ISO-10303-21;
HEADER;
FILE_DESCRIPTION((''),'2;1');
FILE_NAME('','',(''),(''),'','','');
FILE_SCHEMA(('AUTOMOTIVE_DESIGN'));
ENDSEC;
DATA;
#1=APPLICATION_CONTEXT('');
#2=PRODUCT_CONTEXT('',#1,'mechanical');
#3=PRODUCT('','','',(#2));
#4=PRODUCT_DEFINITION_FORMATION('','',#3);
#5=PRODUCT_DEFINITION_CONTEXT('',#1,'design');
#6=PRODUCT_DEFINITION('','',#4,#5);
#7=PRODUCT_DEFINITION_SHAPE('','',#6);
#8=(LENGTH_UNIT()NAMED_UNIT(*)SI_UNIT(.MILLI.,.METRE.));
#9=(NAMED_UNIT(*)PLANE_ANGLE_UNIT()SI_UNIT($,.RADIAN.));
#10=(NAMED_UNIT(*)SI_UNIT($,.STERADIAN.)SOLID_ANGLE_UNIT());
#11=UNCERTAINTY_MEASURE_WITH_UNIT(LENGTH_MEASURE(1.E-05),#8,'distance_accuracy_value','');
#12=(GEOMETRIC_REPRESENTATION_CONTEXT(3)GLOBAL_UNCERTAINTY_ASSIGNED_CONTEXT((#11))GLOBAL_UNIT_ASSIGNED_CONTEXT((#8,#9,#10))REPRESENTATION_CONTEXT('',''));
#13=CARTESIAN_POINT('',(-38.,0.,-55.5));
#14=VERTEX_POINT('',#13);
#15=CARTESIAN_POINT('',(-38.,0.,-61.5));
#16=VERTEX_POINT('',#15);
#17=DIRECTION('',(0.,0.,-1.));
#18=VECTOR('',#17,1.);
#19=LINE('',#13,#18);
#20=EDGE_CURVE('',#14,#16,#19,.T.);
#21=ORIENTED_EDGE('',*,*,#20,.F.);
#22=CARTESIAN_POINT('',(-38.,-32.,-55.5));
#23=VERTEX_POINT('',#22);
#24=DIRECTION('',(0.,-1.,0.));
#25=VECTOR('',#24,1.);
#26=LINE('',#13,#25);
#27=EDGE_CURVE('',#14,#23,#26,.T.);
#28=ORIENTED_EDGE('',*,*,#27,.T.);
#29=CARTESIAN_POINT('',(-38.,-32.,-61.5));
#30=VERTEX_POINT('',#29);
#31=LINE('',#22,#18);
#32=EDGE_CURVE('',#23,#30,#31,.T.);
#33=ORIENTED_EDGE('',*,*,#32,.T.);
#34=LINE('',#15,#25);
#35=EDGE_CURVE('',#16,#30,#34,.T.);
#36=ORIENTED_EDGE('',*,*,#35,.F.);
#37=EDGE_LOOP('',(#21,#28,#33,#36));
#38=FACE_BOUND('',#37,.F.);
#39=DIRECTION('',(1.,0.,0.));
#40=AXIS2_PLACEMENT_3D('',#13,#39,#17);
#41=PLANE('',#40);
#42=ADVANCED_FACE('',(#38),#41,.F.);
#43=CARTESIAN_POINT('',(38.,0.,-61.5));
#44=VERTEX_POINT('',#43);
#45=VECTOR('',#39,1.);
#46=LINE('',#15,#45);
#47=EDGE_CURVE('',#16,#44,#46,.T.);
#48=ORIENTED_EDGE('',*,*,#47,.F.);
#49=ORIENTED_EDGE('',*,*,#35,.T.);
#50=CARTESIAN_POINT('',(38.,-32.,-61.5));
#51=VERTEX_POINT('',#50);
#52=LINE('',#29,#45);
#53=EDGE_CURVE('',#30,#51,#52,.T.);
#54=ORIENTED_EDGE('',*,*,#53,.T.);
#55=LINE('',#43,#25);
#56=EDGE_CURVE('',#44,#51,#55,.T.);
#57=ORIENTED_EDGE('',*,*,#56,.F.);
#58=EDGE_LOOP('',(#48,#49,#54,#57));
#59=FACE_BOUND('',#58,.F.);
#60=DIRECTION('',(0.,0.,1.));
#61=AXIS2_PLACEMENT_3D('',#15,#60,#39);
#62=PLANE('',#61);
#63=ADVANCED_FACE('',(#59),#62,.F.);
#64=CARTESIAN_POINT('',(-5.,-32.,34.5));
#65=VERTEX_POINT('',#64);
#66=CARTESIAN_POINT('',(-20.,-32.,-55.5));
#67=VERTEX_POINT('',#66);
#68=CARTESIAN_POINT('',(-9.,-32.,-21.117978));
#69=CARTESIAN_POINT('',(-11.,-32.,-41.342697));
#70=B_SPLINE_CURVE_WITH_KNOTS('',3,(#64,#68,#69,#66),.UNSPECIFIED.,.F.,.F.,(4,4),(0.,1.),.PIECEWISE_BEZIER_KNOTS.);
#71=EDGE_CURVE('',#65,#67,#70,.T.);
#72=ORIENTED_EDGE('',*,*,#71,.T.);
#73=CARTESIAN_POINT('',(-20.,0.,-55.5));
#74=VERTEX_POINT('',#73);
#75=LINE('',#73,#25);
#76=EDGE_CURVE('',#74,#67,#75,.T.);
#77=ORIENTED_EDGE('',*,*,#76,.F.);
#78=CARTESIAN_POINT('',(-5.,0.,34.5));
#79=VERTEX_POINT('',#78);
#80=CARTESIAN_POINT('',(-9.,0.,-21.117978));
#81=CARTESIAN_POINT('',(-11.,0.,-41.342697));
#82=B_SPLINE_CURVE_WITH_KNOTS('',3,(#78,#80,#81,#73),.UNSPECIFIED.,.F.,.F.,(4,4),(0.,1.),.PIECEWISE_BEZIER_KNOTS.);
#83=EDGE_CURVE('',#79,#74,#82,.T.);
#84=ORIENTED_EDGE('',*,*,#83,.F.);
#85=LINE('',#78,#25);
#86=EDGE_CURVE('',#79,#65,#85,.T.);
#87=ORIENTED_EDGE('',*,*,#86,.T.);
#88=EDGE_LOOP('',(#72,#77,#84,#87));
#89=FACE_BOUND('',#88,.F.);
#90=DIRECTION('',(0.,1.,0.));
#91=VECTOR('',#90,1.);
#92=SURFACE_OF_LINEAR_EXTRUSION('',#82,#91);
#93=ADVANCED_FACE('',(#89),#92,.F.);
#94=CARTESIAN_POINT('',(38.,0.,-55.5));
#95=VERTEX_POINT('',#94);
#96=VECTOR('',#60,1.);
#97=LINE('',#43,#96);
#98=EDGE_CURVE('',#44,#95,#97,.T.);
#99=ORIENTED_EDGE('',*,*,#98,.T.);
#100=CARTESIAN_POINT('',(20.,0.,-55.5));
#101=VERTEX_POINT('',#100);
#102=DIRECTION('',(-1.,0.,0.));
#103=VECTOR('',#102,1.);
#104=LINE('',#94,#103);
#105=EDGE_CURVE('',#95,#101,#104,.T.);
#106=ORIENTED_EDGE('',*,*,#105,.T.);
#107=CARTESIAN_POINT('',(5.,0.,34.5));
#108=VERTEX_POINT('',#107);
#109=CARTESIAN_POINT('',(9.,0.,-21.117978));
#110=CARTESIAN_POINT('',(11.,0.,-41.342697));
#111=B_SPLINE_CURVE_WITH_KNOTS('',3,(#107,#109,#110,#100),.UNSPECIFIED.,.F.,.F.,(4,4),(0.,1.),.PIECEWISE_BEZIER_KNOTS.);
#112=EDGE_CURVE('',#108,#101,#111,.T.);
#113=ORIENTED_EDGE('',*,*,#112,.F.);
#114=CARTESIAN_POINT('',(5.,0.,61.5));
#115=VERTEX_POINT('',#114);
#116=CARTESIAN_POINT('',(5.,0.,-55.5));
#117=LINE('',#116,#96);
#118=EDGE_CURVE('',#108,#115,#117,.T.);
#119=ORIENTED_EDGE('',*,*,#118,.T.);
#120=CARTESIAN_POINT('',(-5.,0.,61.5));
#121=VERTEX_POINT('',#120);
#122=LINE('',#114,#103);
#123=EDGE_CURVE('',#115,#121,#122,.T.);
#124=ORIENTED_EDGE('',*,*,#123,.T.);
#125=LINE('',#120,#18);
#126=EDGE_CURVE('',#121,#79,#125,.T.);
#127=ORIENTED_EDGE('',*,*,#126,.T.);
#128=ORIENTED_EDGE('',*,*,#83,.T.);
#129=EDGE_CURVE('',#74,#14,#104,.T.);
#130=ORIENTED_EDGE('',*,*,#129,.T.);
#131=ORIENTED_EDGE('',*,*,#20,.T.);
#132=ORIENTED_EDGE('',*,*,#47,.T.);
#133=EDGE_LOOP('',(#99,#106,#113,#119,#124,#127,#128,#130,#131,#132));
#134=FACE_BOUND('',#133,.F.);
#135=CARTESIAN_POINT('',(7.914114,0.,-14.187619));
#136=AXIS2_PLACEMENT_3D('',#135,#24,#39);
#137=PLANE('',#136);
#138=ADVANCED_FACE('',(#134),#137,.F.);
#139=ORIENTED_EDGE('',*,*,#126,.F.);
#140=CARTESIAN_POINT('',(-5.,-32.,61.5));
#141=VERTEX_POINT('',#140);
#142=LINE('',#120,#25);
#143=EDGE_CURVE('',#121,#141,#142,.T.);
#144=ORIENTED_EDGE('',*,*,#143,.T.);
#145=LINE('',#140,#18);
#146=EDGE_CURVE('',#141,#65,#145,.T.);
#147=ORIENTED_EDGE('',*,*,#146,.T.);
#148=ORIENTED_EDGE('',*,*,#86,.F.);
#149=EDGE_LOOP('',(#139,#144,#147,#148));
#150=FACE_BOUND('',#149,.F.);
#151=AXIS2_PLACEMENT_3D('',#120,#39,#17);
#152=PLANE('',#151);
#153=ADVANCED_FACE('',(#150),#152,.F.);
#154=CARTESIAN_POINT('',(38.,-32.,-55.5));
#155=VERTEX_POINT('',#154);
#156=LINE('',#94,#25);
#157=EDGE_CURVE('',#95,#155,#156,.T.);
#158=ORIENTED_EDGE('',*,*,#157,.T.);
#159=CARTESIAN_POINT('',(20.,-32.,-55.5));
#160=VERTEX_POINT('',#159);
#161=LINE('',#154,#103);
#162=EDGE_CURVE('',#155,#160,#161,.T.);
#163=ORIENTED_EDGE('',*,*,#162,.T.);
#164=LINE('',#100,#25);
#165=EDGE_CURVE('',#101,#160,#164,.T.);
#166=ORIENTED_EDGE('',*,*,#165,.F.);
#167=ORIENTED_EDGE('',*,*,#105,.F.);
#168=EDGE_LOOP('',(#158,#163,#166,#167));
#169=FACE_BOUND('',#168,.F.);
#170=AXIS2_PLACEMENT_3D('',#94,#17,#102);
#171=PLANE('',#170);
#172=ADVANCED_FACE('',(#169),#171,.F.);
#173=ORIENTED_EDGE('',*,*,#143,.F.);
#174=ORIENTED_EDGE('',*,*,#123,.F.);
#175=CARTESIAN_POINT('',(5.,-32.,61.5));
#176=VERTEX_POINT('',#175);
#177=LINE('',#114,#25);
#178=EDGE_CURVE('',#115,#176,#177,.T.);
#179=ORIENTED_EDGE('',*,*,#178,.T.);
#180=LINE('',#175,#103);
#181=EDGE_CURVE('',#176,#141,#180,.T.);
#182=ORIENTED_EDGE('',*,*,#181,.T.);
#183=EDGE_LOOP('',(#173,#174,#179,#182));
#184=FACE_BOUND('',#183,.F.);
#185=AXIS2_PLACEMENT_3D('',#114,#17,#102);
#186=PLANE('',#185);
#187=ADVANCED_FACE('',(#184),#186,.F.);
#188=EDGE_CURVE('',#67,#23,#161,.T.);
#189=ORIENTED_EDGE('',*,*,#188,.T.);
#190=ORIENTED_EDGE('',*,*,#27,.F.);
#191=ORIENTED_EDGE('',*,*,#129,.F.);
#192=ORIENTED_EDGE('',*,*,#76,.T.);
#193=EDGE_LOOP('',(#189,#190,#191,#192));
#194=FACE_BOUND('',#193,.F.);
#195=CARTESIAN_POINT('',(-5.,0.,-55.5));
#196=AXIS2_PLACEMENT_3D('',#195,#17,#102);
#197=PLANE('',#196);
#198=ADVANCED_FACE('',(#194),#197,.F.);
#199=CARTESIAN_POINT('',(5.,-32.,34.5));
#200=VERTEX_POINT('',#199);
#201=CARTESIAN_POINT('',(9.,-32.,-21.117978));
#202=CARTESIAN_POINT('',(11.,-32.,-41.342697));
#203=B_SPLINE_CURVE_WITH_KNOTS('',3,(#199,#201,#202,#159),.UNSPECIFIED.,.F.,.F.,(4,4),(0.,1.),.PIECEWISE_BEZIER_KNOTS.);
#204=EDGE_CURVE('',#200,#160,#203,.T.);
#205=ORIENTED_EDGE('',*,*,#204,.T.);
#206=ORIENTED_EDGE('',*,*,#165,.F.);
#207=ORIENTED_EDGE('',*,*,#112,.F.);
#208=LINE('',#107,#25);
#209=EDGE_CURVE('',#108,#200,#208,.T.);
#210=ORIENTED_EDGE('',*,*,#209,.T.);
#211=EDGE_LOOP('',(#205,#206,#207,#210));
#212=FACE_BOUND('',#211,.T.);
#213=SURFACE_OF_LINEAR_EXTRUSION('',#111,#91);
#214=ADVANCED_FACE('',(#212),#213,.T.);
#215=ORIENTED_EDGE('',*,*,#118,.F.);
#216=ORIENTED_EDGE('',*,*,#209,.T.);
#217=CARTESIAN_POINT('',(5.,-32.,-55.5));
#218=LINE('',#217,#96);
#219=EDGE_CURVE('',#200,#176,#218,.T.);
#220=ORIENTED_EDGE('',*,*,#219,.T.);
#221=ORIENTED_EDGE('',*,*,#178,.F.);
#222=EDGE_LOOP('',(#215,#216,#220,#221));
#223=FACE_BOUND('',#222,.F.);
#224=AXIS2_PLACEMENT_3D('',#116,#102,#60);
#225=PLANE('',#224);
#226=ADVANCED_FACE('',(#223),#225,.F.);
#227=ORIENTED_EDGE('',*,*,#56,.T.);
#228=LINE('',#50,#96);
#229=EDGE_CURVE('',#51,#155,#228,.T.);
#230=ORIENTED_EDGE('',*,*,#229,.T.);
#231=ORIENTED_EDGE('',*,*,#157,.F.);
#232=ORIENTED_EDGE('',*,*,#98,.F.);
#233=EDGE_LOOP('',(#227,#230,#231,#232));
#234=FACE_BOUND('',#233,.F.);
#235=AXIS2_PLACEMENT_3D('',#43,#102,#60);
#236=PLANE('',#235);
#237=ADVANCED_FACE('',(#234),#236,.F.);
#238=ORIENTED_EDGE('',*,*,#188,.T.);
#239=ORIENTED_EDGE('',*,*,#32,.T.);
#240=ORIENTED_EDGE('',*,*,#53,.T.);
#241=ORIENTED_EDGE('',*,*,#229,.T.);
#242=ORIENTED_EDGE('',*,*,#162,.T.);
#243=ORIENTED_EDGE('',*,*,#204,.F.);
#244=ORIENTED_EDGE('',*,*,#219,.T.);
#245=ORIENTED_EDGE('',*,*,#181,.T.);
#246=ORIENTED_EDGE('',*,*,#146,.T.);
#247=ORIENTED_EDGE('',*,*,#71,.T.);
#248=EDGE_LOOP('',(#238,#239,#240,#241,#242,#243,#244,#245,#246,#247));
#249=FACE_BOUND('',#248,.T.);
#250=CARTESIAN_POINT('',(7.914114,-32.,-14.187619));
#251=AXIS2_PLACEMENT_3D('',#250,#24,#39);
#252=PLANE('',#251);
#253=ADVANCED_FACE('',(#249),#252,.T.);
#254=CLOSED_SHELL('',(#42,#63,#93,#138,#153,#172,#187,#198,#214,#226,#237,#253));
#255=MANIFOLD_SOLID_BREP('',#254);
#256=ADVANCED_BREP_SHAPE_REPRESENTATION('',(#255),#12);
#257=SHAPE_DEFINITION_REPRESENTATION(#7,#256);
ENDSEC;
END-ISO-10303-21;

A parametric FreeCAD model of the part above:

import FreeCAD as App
import Part
import Sketcher
from FreeCAD import Vector
Q = App.Units.Quantity


def add_polygon(sketch, points):
    """Adds a closed chain of lines whose ends are joined by coincident constraints."""
    first, n = sketch.GeometryCount, len(points)
    for a, b in zip(points, points[1:] + points[:1]):
        sketch.addGeometry(Part.LineSegment(App.Vector(*a, 0), App.Vector(*b, 0)), False)
    for i in range(n):
        sketch.addConstraint(Sketcher.Constraint("Coincident", first + i, 2, first + (i + 1) % n, 1))

doc = App.newDocument("Part")
body = doc.addObject("PartDesign::Body", "Body")

sketch1 = body.newObject("Sketcher::SketchObject", "Sketch")
sketch1.AttachmentSupport = (doc.getObject("XZ_Plane"), [""])
sketch1.MapMode = "FlatFace"
add_polygon(sketch1, [(-38, -56), (-38, -62), (38, -62), (38, -56), (5, -56), (5, 62), (-5, 62), (-5, -56)])
sketch1.addConstraint(Sketcher.Constraint("Vertical", 0))
sketch1.addConstraint(Sketcher.Constraint("Horizontal", 1))
sketch1.addConstraint(Sketcher.Constraint("Vertical", 2))
sketch1.addConstraint(Sketcher.Constraint("Horizontal", 3))
sketch1.addConstraint(Sketcher.Constraint("Vertical", 4))
sketch1.addConstraint(Sketcher.Constraint("Horizontal", 5))
sketch1.addConstraint(Sketcher.Constraint("Vertical", 6))
sketch1.addConstraint(Sketcher.Constraint("Horizontal", 7))
sketch1.addConstraint(Sketcher.Constraint("Symmetric", 3, 2, 6, 2, -2))
sketch1.addConstraint(Sketcher.Constraint("Equal", 3, 7))
sketch1.addConstraint(Sketcher.Constraint("DistanceX", 1, 1, 1, 2, Q("76 mm")))
sketch1.addConstraint(Sketcher.Constraint("DistanceX", 3, 2, 3, 1, Q("33 mm")))
sketch1.addConstraint(Sketcher.Constraint("DistanceY", 0, 2, 0, 1, Q("6 mm")))
sketch1.addConstraint(Sketcher.Constraint("DistanceY", 4, 1, 4, 2, Q("117 mm")))
sketch1.addConstraint(Sketcher.Constraint("DistanceY", 0, 2, -1, 1, Q("61.5 mm")))
pad1 = body.newObject("PartDesign::Pad", "Pad")
pad1.Profile = sketch1
pad1.Length = 32

sketch2 = body.newObject("Sketcher::SketchObject", "Sketch001")
sketch2.AttachmentSupport = (doc.getObject("XZ_Plane"), [""])
sketch2.MapMode = "FlatFace"
sketch2.addGeometry(Part.LineSegment(Vector(5, -55.5, 0), Vector(20, -55.5, 0)), False)
sketch2.addGeometry(Part.BSplineCurve([Vector(5, 34.5, 0), Vector(9, -21.117978, 0), Vector(11, -41.342697, 0), Vector(20, -55.5, 0)], [4, 4], [0, 1], False, 3, [1, 1, 1, 1], False), False)
sketch2.addGeometry(Part.LineSegment(Vector(5, 34.5, 0), Vector(5, -55.5, 0)), False)
sketch2.addGeometry(Part.BSplineCurve([Vector(-5, 34.5, 0), Vector(-9, -21.117978, 0), Vector(-11, -41.342697, 0), Vector(-20, -55.5, 0)], [4, 4], [0, 1], False, 3, [1, 1, 1, 1], False), False)
sketch2.addGeometry(Part.LineSegment(Vector(-20, -55.5, 0), Vector(-5, -55.5, 0)), False)
sketch2.addGeometry(Part.LineSegment(Vector(-5, -55.5, 0), Vector(-5, 34.5, 0)), False)
sketch2.addConstraint(Sketcher.Constraint("Block", 1))
sketch2.addConstraint(Sketcher.Constraint("Block", 3))
sketch2.addConstraint(Sketcher.Constraint("Coincident", 0, 2, 1, 2))
sketch2.addConstraint(Sketcher.Constraint("Coincident", 1, 1, 2, 1))
sketch2.addConstraint(Sketcher.Constraint("Coincident", 2, 2, 0, 1))
sketch2.addConstraint(Sketcher.Constraint("Coincident", 3, 2, 4, 1))
sketch2.addConstraint(Sketcher.Constraint("Coincident", 4, 2, 5, 1))
sketch2.addConstraint(Sketcher.Constraint("Coincident", 5, 2, 3, 1))
sketch2.addConstraint(Sketcher.Constraint("Horizontal", 0))
sketch2.addConstraint(Sketcher.Constraint("Vertical", 2))
sketch2.addConstraint(Sketcher.Constraint("Horizontal", 4))
sketch2.addConstraint(Sketcher.Constraint("Vertical", 5))
pad2 = body.newObject("PartDesign::Pad", "Pad001")
pad2.Profile = sketch2
pad2.Length = 32

doc.recompute()
